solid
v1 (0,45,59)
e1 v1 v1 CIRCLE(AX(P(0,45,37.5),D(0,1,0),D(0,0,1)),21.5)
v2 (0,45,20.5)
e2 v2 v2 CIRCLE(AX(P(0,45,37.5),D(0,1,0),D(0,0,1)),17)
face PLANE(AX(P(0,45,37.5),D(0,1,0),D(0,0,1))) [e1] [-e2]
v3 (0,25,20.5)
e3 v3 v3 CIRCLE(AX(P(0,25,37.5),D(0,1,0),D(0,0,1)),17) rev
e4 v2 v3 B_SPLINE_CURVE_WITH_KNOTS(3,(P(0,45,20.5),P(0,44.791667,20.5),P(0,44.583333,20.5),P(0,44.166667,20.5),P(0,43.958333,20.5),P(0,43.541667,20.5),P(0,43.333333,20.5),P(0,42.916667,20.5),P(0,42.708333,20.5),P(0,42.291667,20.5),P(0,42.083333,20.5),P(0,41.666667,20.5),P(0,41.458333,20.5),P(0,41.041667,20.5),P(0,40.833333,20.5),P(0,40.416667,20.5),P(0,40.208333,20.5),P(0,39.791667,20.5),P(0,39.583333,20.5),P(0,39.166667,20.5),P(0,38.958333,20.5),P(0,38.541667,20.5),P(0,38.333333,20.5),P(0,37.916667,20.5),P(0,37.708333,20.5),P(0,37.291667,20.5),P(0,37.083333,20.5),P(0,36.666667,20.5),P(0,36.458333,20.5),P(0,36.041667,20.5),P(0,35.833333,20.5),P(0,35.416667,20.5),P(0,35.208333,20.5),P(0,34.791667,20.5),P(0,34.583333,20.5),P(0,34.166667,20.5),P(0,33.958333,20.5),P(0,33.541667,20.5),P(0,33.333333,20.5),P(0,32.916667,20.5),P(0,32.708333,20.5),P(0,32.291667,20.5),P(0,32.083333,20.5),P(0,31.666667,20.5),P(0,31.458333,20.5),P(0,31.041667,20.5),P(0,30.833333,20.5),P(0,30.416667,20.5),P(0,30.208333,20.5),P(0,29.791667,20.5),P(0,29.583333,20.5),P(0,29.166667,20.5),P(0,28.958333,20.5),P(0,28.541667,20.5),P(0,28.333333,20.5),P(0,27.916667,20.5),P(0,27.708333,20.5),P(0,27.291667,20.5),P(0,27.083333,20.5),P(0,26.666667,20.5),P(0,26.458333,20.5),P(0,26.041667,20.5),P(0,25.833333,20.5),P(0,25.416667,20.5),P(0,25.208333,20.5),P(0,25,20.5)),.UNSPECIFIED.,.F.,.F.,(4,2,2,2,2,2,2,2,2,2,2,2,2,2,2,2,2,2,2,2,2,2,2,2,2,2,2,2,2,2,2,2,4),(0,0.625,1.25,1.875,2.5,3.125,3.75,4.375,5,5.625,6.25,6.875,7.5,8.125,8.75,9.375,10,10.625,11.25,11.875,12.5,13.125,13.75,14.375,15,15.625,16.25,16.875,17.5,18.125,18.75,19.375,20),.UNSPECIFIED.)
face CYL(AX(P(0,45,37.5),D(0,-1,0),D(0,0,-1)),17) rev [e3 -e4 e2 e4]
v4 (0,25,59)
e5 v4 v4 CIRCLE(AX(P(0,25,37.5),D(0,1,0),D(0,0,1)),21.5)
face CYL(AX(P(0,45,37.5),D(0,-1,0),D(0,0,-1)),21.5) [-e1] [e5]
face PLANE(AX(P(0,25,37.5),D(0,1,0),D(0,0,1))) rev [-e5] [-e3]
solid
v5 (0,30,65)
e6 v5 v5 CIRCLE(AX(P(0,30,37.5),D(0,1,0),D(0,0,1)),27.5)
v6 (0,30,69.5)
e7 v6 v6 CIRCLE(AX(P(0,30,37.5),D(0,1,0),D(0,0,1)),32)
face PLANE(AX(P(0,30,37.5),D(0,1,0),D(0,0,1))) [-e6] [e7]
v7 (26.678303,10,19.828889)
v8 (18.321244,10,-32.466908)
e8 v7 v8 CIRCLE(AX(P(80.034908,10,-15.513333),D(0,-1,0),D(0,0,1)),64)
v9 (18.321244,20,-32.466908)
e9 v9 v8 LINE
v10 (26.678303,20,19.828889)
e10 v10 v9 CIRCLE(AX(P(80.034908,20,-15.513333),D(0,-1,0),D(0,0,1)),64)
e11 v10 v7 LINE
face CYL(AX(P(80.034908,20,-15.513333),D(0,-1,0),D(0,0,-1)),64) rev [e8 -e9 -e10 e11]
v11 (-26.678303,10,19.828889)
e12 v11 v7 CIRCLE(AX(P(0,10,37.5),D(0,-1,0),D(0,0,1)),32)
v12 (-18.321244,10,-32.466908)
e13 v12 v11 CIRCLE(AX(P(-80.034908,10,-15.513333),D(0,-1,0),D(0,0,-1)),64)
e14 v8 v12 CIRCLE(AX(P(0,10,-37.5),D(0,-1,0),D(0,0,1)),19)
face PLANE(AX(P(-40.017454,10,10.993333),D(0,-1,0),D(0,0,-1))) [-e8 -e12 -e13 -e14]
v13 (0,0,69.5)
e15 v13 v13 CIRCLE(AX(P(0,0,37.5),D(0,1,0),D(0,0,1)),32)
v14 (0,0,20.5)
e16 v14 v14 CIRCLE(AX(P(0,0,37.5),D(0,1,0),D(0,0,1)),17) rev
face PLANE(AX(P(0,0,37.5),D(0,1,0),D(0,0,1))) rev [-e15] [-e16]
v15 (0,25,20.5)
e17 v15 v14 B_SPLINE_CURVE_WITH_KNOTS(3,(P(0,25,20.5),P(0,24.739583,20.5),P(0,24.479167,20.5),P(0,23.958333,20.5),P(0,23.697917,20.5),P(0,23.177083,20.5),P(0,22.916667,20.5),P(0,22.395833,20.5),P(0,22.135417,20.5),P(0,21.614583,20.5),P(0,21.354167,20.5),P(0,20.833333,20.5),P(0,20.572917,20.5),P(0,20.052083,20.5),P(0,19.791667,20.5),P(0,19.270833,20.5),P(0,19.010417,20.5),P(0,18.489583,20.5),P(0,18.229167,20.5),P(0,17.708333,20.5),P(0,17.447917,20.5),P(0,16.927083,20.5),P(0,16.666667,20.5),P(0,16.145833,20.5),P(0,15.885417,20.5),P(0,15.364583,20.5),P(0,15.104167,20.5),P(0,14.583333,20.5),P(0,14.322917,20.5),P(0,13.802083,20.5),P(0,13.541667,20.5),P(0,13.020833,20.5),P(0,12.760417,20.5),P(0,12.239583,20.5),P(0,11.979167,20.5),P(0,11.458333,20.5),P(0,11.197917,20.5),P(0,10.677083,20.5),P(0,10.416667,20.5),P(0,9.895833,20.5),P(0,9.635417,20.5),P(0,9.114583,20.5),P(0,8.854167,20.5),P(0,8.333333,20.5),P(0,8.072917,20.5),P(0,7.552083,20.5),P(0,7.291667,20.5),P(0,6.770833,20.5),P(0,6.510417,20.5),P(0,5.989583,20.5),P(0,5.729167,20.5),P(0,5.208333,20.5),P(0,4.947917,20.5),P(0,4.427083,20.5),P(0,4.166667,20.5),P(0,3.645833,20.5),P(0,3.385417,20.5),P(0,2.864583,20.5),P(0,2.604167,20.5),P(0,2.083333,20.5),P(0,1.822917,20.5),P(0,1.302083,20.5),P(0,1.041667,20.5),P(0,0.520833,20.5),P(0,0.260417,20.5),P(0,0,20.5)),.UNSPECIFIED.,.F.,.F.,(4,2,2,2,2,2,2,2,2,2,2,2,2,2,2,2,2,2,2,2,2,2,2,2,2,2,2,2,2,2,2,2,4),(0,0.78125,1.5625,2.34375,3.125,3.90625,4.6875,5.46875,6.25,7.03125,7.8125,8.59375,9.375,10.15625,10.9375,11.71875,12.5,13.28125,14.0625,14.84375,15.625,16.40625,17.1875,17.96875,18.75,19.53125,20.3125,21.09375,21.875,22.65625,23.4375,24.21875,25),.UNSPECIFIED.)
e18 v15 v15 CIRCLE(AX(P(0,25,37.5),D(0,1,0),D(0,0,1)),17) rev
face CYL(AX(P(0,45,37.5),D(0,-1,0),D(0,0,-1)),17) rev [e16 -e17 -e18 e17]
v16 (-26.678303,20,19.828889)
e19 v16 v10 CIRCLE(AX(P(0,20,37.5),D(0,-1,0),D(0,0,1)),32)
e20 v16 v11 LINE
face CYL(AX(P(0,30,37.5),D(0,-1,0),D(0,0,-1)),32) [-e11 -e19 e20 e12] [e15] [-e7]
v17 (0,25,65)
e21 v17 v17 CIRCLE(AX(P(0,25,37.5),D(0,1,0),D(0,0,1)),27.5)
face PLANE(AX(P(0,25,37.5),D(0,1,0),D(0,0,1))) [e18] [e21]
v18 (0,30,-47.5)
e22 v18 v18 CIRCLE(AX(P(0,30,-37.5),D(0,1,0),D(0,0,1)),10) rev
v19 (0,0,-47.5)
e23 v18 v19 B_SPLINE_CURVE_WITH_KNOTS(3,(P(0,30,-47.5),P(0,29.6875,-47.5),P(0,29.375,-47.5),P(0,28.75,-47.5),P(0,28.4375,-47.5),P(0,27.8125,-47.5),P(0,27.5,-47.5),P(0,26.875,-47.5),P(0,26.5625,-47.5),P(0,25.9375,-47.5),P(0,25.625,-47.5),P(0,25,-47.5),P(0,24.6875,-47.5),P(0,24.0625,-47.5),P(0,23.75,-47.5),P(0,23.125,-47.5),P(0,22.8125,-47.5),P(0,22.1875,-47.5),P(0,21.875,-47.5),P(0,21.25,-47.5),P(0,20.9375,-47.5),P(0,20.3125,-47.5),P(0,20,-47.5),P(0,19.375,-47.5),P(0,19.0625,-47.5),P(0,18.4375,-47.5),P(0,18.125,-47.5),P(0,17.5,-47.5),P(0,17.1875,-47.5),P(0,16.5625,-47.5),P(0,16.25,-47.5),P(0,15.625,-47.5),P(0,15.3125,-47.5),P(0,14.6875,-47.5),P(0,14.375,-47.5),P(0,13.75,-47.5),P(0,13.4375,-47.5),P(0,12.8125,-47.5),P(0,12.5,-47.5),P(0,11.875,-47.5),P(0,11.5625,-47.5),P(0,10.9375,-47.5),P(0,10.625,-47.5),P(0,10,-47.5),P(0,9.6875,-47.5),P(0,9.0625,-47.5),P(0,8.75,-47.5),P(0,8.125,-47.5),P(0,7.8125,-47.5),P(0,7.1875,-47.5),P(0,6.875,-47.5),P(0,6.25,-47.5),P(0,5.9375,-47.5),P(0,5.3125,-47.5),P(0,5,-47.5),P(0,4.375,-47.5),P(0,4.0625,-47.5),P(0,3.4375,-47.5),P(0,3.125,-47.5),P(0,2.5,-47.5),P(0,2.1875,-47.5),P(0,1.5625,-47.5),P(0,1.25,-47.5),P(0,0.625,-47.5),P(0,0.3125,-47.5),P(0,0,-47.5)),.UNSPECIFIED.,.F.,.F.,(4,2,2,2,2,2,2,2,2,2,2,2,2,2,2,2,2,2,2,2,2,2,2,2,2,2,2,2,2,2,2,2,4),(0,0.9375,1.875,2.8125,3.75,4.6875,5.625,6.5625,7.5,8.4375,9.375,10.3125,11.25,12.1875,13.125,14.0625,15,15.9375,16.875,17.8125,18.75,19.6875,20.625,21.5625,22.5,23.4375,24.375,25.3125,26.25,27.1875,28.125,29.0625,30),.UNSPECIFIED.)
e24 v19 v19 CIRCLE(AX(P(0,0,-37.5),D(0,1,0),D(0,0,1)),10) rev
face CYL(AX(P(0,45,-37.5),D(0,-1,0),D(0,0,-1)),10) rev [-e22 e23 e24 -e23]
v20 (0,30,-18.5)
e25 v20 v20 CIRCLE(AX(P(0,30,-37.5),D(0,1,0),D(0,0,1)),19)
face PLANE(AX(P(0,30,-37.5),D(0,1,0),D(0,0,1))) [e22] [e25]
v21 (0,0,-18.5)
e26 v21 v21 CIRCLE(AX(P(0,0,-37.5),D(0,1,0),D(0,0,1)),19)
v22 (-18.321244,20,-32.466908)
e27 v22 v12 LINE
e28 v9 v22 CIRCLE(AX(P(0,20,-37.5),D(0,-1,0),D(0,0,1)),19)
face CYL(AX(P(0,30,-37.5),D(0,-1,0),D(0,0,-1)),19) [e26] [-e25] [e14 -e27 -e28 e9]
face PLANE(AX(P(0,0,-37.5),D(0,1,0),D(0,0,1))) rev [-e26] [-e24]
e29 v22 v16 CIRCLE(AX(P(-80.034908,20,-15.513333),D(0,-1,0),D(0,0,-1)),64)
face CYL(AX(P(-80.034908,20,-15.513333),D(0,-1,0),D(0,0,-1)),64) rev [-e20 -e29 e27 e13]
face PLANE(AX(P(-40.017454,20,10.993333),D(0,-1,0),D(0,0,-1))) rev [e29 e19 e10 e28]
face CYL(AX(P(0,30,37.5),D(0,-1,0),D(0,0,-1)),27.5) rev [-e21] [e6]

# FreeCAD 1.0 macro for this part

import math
import FreeCAD as App
import Part
import Sketcher

doc = App.newDocument("Part")
params = doc.addObject("Spreadsheet::Sheet", "Params")
for row, (alias, value) in enumerate([
    ("sketch1_diameter", "38 mm"),
    ("pad1_length", "30 mm"),
    ("sketch2_diameter", "64 mm"),
    ("pad2_length", "30 mm"),
    ("sketch3_radius", "19 mm"),
    ("sketch3_radius2", "64 mm"),
    ("sketch3_radius3", "32 mm"),
    ("pad3_length", "10 mm"),
    ("sketch4_diameter", "55 mm"),
    ("pocket1_length", "5 mm"),
    ("sketch5_diameter", "43 mm"),
    ("pad4_length", "20 mm"),
    ("sketch6_diameter", "20 mm"),
    ("sketch6_diameter2", "34 mm"),
    ("pad5_length", "89.76514 mm"),
    ("pad5_length2", "89.76514 mm"),
], start=1):
    params.set(f"A{row}", alias)
    params.set(f"B{row}", "=" + value)
    params.setAlias(f"B{row}", alias)

body = doc.addObject("PartDesign::Body", "Body")

sketch1 = body.newObject("Sketcher::SketchObject", "Sketch")
sketch1.AttachmentSupport = (doc.getObject("XZ_Plane"), [""])
sketch1.MapMode = "FlatFace"
sketch1.addGeometry(Part.Circle(App.Vector(0, -38, 0), App.Vector(0, 0, 1), 19), False)
sketch1.addConstraint(Sketcher.Constraint("PointOnObject", 0, 3, -2))
sketch1.addConstraint(Sketcher.Constraint("Diameter", 0, 38.0))
sketch1.addConstraint(Sketcher.Constraint("DistanceY", 0, 3, -1, 1, 37.5))
sketch1.setExpression("Constraints[1]", "Params.sketch1_diameter")
pad1 = body.newObject("PartDesign::Pad", "Pad")
pad1.Profile = sketch1
pad1.setExpression("Length", "Params.pad1_length")
pad1.Reversed = True
body2 = doc.addObject("PartDesign::Body", "Body001")

sketch2 = body2.newObject("Sketcher::SketchObject", "Sketch001")
sketch2.AttachmentSupport = (doc.getObject("XZ_Plane001"), [""])
sketch2.MapMode = "FlatFace"
sketch2.addGeometry(Part.Circle(App.Vector(0, 38, 0), App.Vector(0, 0, 1), 32), False)
sketch2.addConstraint(Sketcher.Constraint("PointOnObject", 0, 3, -2))
sketch2.addConstraint(Sketcher.Constraint("Diameter", 0, 64.0))
sketch2.addConstraint(Sketcher.Constraint("DistanceY", -1, 1, 0, 3, 37.5))
sketch2.setExpression("Constraints[1]", "Params.sketch2_diameter")
pad2 = body2.newObject("PartDesign::Pad", "Pad001")
pad2.Profile = sketch2
pad2.setExpression("Length", "Params.pad2_length")
pad2.Reversed = True
body.AllowCompound = True
doc.recompute()

boolean = body.newObject("PartDesign::Boolean", "Boolean")
boolean.Type = "Fuse"
boolean.addObjects([body2])

sketch3 = body.newObject("Sketcher::SketchObject", "Sketch002")
sketch3.AttachmentSupport = (doc.getObject("XZ_Plane"), [""])
sketch3.MapMode = "FlatFace"
sketch3.AttachmentOffset = App.Placement(App.Vector(0, 0, -10), App.Rotation())
sketch3.addGeometry(Part.ArcOfCircle(Part.Circle(App.Vector(0, -38, 0), App.Vector(0, 0, 1), 19), math.radians(15), math.radians(165)), False)
sketch3.addGeometry(Part.ArcOfCircle(Part.Circle(App.Vector(-80, -16, 0), App.Vector(0, 0, 1), 64), math.radians(-15), math.radians(34)), False)
sketch3.addGeometry(Part.ArcOfCircle(Part.Circle(App.Vector(0, 38, 0), App.Vector(0, 0, 1), 32), math.radians(-146), math.radians(-34)), False)
sketch3.addGeometry(Part.ArcOfCircle(Part.Circle(App.Vector(80, -16, 0), App.Vector(0, 0, 1), 64), math.radians(146), math.radians(195)), False)
sketch3.addConstraint(Sketcher.Constraint("Tangent", 0, 2, 1, 1))
sketch3.addConstraint(Sketcher.Constraint("Tangent", 1, 2, 2, 1))
sketch3.addConstraint(Sketcher.Constraint("Tangent", 2, 2, 3, 1))
sketch3.addConstraint(Sketcher.Constraint("Tangent", 3, 2, 0, 1))
sketch3.addConstraint(Sketcher.Constraint("Equal", 1, 3))
sketch3.addConstraint(Sketcher.Constraint("Symmetric", 0, 3, 2, 3, -1, 1))
sketch3.addConstraint(Sketcher.Constraint("PointOnObject", 0, 3, -2))
sketch3.addConstraint(Sketcher.Constraint("Radius", 0, 19.0))
sketch3.addConstraint(Sketcher.Constraint("Radius", 1, 64.0))
sketch3.addConstraint(Sketcher.Constraint("Radius", 2, 32.0))
sketch3.addConstraint(Sketcher.Constraint("DistanceY", 0, 3, 2, 3, 75.0))
sketch3.setExpression("Constraints[7]", "Params.sketch3_radius")
sketch3.setExpression("Constraints[8]", "Params.sketch3_radius2")
sketch3.setExpression("Constraints[9]", "Params.sketch3_radius3")
pad3 = body.newObject("PartDesign::Pad", "Pad002")
pad3.Profile = sketch3
pad3.setExpression("Length", "Params.pad3_length")
pad3.Reversed = True

sketch4 = body.newObject("Sketcher::SketchObject", "Sketch003")
sketch4.AttachmentSupport = (doc.getObject("XZ_Plane"), [""])
sketch4.MapMode = "FlatFace"
sketch4.AttachmentOffset = App.Placement(App.Vector(0, 0, -25), App.Rotation())
sketch4.addGeometry(Part.Circle(App.Vector(0, 38, 0), App.Vector(0, 0, 1), 28), False)
sketch4.addConstraint(Sketcher.Constraint("PointOnObject", 0, 3, -2))
sketch4.addConstraint(Sketcher.Constraint("Diameter", 0, 55.0))
sketch4.addConstraint(Sketcher.Constraint("DistanceY", -1, 1, 0, 3, 37.5))
sketch4.setExpression("Constraints[1]", "Params.sketch4_diameter")
pocket1 = body.newObject("PartDesign::Pocket", "Pocket")
pocket1.Profile = sketch4
pocket1.setExpression("Length", "Params.pocket1_length")
body3 = doc.addObject("PartDesign::Body", "Body002")

sketch5 = body3.newObject("Sketcher::SketchObject", "Sketch004")
sketch5.AttachmentSupport = (doc.getObject("XZ_Plane002"), [""])
sketch5.MapMode = "FlatFace"
sketch5.AttachmentOffset = App.Placement(App.Vector(0, 0, -25), App.Rotation())
sketch5.addGeometry(Part.Circle(App.Vector(0, 38, 0), App.Vector(0, 0, 1), 22), False)
sketch5.addConstraint(Sketcher.Constraint("PointOnObject", 0, 3, -2))
sketch5.addConstraint(Sketcher.Constraint("Diameter", 0, 43.0))
sketch5.addConstraint(Sketcher.Constraint("DistanceY", -1, 1, 0, 3, 37.5))
sketch5.setExpression("Constraints[1]", "Params.sketch5_diameter")
pad4 = body3.newObject("PartDesign::Pad", "Pad003")
pad4.Profile = sketch5
pad4.setExpression("Length", "Params.pad4_length")
pad4.Reversed = True
body4 = doc.addObject("PartDesign::Body", "Body003")
body4.AllowCompound = True

sketch6 = body4.newObject("Sketcher::SketchObject", "Sketch005")
sketch6.AttachmentSupport = (doc.getObject("XZ_Plane003"), [""])
sketch6.MapMode = "FlatFace"
sketch6.addGeometry(Part.Circle(App.Vector(0, -38, 0), App.Vector(0, 0, 1), 10), False)
sketch6.addGeometry(Part.Circle(App.Vector(0, 38, 0), App.Vector(0, 0, 1), 17), False)
sketch6.addConstraint(Sketcher.Constraint("Symmetric", 0, 3, 1, 3, -1, 1))
sketch6.addConstraint(Sketcher.Constraint("PointOnObject", 0, 3, -2))
sketch6.addConstraint(Sketcher.Constraint("Diameter", 0, 20.0))
sketch6.addConstraint(Sketcher.Constraint("Diameter", 1, 34.0))
sketch6.addConstraint(Sketcher.Constraint("DistanceY", 0, 3, 1, 3, 75.0))
sketch6.setExpression("Constraints[2]", "Params.sketch6_diameter")
sketch6.setExpression("Constraints[3]", "Params.sketch6_diameter2")
pad5 = body4.newObject("PartDesign::Pad", "Pad004")
pad5.Profile = sketch6
pad5.Type = "TwoLengths"
pad5.setExpression("Length", "Params.pad5_length")
pad5.setExpression("Length2", "Params.pad5_length2")
pad5.Reversed = True
doc.recompute()

body5 = doc.addObject("PartDesign::Body", "Body004")
body5.BaseFeature = body4
boolean2 = body.newObject("PartDesign::Boolean", "Boolean001")
boolean2.Type = "Cut"
boolean2.addObjects([body5])
doc.recompute()

boolean3 = body3.newObject("PartDesign::Boolean", "Boolean002")
boolean3.Type = "Cut"
boolean3.addObjects([body4])

doc.recompute()
